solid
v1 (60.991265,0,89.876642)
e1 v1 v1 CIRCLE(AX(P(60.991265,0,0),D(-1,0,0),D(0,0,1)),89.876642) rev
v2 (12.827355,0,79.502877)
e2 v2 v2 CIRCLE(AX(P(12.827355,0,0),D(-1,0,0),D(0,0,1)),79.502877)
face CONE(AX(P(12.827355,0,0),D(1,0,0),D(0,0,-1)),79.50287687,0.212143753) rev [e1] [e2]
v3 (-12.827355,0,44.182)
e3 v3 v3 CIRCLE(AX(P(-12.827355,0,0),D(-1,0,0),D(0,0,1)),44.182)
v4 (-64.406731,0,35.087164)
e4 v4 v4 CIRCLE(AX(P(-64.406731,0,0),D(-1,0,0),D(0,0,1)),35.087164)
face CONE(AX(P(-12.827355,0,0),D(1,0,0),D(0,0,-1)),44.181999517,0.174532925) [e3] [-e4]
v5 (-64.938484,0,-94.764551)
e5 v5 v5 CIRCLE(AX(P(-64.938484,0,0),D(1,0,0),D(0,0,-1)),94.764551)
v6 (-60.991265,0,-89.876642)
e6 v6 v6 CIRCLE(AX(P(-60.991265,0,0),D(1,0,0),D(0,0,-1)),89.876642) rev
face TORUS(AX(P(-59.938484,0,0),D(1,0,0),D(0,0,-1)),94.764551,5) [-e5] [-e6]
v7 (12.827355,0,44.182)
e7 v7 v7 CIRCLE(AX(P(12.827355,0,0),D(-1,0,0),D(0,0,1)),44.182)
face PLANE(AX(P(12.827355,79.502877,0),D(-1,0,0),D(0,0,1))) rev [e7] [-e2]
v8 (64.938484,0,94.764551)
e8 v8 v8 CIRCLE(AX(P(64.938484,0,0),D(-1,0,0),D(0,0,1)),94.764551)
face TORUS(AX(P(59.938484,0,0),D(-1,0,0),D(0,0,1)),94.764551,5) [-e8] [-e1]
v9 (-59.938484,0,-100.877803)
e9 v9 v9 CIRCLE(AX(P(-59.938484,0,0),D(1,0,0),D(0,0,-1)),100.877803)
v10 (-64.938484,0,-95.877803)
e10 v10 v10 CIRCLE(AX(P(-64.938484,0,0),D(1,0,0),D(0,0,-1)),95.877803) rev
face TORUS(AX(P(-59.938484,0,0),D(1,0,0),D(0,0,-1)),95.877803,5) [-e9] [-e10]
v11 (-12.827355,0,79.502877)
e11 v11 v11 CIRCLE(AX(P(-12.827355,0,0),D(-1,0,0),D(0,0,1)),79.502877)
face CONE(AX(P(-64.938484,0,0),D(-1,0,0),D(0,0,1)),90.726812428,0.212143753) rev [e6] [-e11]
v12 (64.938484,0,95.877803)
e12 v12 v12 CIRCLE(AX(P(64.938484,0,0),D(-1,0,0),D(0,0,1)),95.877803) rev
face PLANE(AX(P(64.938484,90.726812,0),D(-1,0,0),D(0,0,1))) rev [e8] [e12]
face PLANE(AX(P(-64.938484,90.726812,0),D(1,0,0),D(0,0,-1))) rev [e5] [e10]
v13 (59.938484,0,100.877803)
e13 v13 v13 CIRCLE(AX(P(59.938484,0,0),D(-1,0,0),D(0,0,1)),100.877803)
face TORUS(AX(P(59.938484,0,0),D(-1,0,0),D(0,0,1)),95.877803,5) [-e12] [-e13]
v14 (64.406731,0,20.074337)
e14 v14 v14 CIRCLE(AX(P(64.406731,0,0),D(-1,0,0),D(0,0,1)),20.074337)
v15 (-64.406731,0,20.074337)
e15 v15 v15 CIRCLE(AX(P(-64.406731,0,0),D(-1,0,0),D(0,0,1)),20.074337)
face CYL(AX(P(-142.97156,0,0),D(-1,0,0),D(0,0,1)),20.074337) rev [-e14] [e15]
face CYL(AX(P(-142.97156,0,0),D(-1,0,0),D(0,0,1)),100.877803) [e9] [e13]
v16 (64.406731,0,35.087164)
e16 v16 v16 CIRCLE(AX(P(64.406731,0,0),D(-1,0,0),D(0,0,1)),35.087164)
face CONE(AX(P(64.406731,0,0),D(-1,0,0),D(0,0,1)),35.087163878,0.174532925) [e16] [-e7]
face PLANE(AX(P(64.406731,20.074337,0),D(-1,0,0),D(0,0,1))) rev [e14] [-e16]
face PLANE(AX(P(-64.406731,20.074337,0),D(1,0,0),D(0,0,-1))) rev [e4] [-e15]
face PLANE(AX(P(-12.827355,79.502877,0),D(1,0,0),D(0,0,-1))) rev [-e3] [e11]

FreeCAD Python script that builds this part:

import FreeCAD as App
import Part
import Sketcher

V = App.Vector
Q = App.Units.Quantity


def edges_at(feature, points):
    """Names of the edges that pass closest to the given points."""
    edges = feature.Shape.Edges
    near = lambda p: min(range(len(edges)), key=lambda i: edges[i].distToShape(Part.Vertex(*p))[0])
    return sorted({f"Edge{near(p) + 1}" for p in points})

doc = App.newDocument("Part")
params = doc.addObject("Spreadsheet::Sheet", "Params")
for row, (alias, value) in enumerate([
    ("revolution_angle", "360 deg"),
    ("fillet_radius", "5 mm"),
    ("fillet2_radius", "5 mm"),
    ("fillet3_radius", "5 mm"),
], start=1):
    params.set(f"A{row}", alias)
    params.set(f"B{row}", "=" + value)
    params.setAlias(f"B{row}", alias)

body = doc.addObject("PartDesign::Body", "Body")

sketch1 = body.newObject("Sketcher::SketchObject", "Sketch")
sketch1.AttachmentSupport = (doc.getObject("XY_Plane"), [""])
sketch1.MapMode = "FlatFace"
sketch1.addGeometry(Part.LineSegment(V(64.406731, 20.074337, 0), V(64.406731, 35.087164, 0)), False)
sketch1.addGeometry(Part.LineSegment(V(64.406731, 35.087164, 0), V(12.827355, 44.182, 0)), False)
sketch1.addGeometry(Part.LineSegment(V(12.827355, 44.182, 0), V(12.827355, 79.502877, 0)), False)
sketch1.addGeometry(Part.LineSegment(V(12.827355, 79.502877, 0), V(64.938484, 90.726812, 0)), False)
sketch1.addGeometry(Part.LineSegment(V(64.938484, 90.726812, 0), V(64.938484, 100.877803, 0)), False)
sketch1.addGeometry(Part.LineSegment(V(64.938484, 100.877803, 0), V(-64.938484, 100.877803, 0)), False)
sketch1.addGeometry(Part.LineSegment(V(-64.938484, 100.877803, 0), V(-64.938484, 90.726812, 0)), False)
sketch1.addGeometry(Part.LineSegment(V(-64.938484, 90.726812, 0), V(-12.827355, 79.502877, 0)), False)
sketch1.addGeometry(Part.LineSegment(V(-12.827355, 79.502877, 0), V(-12.827355, 44.182, 0)), False)
sketch1.addGeometry(Part.LineSegment(V(-12.827355, 44.182, 0), V(-64.406731, 35.087164, 0)), False)
sketch1.addGeometry(Part.LineSegment(V(-64.406731, 35.087164, 0), V(-64.406731, 20.074337, 0)), False)
sketch1.addGeometry(Part.LineSegment(V(-64.406731, 20.074337, 0), V(64.406731, 20.074337, 0)), False)
sketch1.addConstraint(Sketcher.Constraint("Coincident", 0, 2, 1, 1))
sketch1.addConstraint(Sketcher.Constraint("Coincident", 1, 2, 2, 1))
sketch1.addConstraint(Sketcher.Constraint("Coincident", 2, 2, 3, 1))
sketch1.addConstraint(Sketcher.Constraint("Coincident", 3, 2, 4, 1))
sketch1.addConstraint(Sketcher.Constraint("Coincident", 4, 2, 5, 1))
sketch1.addConstraint(Sketcher.Constraint("Coincident", 5, 2, 6, 1))
sketch1.addConstraint(Sketcher.Constraint("Coincident", 6, 2, 7, 1))
sketch1.addConstraint(Sketcher.Constraint("Coincident", 7, 2, 8, 1))
sketch1.addConstraint(Sketcher.Constraint("Coincident", 8, 2, 9, 1))
sketch1.addConstraint(Sketcher.Constraint("Coincident", 9, 2, 10, 1))
sketch1.addConstraint(Sketcher.Constraint("Coincident", 10, 2, 11, 1))
sketch1.addConstraint(Sketcher.Constraint("Coincident", 11, 2, 0, 1))
sketch1.addConstraint(Sketcher.Constraint("Vertical", 0))
sketch1.addConstraint(Sketcher.Constraint("Vertical", 2))
sketch1.addConstraint(Sketcher.Constraint("Vertical", 4))
sketch1.addConstraint(Sketcher.Constraint("Horizontal", 5))
sketch1.addConstraint(Sketcher.Constraint("Vertical", 6))
sketch1.addConstraint(Sketcher.Constraint("Vertical", 8))
sketch1.addConstraint(Sketcher.Constraint("Vertical", 10))
sketch1.addConstraint(Sketcher.Constraint("Horizontal", 11))
sketch1.addConstraint(Sketcher.Constraint("Symmetric", 3, 2, 6, 2, -2))
sketch1.addConstraint(Sketcher.Constraint("Symmetric", 2, 2, 7, 2, -2))
sketch1.addConstraint(Sketcher.Constraint("Symmetric", 0, 2, 9, 2, -2))
sketch1.addConstraint(Sketcher.Constraint("Horizontal", 1, 2, 8, 2))
sketch1.addConstraint(Sketcher.Constraint("Angle", 1, Q("170 deg")))
sketch1.addConstraint(Sketcher.Constraint("DistanceY", -1, 1, 1, 2, 44.182))
sketch1.addConstraint(Sketcher.Constraint("DistanceX", 5, 2, 5, 1, 129.876969))
sketch1.addConstraint(Sketcher.Constraint("DistanceX", 11, 1, 11, 2, 128.813462))
sketch1.addConstraint(Sketcher.Constraint("DistanceY", 4, 1, 4, 2, 10.150991))
sketch1.addConstraint(Sketcher.Constraint("Distance", 1, 52.375071))
sketch1.addConstraint(Sketcher.Constraint("Distance", 3, 53.306159))
sketch1.addConstraint(Sketcher.Constraint("DistanceY", 0, 1, 0, 2, 15.012827))
sketch1.addConstraint(Sketcher.Constraint("DistanceY", 2, 1, 2, 2, 35.320877))
revolution = body.newObject("PartDesign::Revolution", "Revolution")
revolution.Profile = sketch1
revolution.ReferenceAxis = (sketch1, ["H_Axis"])
revolution.setExpression("Angle", "Params.revolution_angle")
doc.recompute()

fillet = body.newObject("PartDesign::Fillet", "Fillet")
fillet.Base = (revolution, edges_at(revolution, [(-64.938, 0, -100.878)]))
fillet.setExpression("Radius", "Params.fillet_radius")
doc.recompute()

fillet2 = body.newObject("PartDesign::Fillet", "Fillet001")
fillet2.Base = (fillet, edges_at(fillet, [(64.938, 0, -90.727), (64.938, 0, -100.878)]))
fillet2.setExpression("Radius", "Params.fillet2_radius")
doc.recompute()

fillet3 = body.newObject("PartDesign::Fillet", "Fillet002")
fillet3.Base = (fillet2, edges_at(fillet2, [(-64.938, 0, -90.727)]))
fillet3.setExpression("Radius", "Params.fillet3_radius")

doc.recompute()
